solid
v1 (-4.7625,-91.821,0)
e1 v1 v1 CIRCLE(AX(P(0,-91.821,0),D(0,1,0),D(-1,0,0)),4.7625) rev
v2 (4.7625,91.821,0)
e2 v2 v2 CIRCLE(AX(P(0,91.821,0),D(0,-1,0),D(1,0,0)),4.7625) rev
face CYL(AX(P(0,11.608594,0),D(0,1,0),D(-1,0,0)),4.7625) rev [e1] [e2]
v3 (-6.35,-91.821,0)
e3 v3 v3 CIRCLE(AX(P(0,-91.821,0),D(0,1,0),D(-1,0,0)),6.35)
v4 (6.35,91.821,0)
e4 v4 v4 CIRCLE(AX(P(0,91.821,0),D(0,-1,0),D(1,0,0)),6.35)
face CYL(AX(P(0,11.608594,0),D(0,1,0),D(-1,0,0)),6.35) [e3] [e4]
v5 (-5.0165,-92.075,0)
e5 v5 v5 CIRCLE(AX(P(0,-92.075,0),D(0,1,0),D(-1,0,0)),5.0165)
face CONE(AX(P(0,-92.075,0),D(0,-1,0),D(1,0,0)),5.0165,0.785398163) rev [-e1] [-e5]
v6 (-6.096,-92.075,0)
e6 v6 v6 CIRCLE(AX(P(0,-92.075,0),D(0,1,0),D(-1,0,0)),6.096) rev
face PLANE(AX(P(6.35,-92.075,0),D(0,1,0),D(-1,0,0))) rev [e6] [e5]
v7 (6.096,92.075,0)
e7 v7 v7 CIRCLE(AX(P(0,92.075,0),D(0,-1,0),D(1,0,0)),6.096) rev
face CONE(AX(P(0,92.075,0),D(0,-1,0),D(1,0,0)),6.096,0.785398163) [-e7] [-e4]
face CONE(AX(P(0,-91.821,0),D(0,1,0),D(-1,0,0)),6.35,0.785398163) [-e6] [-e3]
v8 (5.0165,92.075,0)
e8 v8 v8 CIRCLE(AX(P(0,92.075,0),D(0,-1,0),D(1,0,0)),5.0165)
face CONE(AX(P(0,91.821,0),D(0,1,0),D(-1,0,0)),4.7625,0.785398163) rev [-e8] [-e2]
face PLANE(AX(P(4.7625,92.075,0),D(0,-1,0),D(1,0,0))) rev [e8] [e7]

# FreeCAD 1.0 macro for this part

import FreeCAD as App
import Part
import Sketcher

V = App.Vector
Q = App.Units.Quantity


def edges_at(feature, points):
    """Names of the edges that pass closest to the given points."""
    edges = feature.Shape.Edges
    near = lambda p: min(range(len(edges)), key=lambda i: edges[i].distToShape(Part.Vertex(*p))[0])
    return sorted({f"Edge{near(p) + 1}" for p in points})


def add_polygon(sketch, points):
    """Adds a closed chain of lines whose ends are joined by coincident constraints."""
    first, n = sketch.GeometryCount, len(points)
    for a, b in zip(points, points[1:] + points[:1]):
        sketch.addGeometry(Part.LineSegment(App.Vector(*a, 0), App.Vector(*b, 0)), False)
    for i in range(n):
        sketch.addConstraint(Sketcher.Constraint("Coincident", first + i, 2, first + (i + 1) % n, 1))

doc = App.newDocument("Part")
body = doc.addObject("PartDesign::Body", "Body")

# Sketch on XY plane
sketch1 = body.newObject("Sketcher::SketchObject", "Sketch")
sketch1.AttachmentSupport = (doc.getObject("XY_Plane"), [""])
sketch1.MapMode = "FlatFace"
add_polygon(sketch1, [(4.8, 92.1), (4.8, -92.1), (6.3, -92.1), (6.3, 92.1)])  # lines 0-3
sketch1.addConstraint([
    Sketcher.Constraint("Vertical", 0),
    Sketcher.Constraint("Horizontal", 1),
    Sketcher.Constraint("Vertical", 2),
    Sketcher.Constraint("Horizontal", 3),
    Sketcher.Constraint("DistanceY", 0, 2, 0, 1, Q("7.25 in")),
    Sketcher.Constraint("DistanceX", 1, 1, 1, 2, Q("0.0625 in")),
    Sketcher.Constraint("DistanceX", -1, 1, 1, 2, Q("0.25 in")),
    Sketcher.Constraint("DistanceY", 0, 2, -1, 1, Q("3.625 in")),
])
revolution = body.newObject("PartDesign::Revolution", "Revolution")
revolution.Profile = sketch1
revolution.ReferenceAxis = (sketch1, ["V_Axis"])
revolution.Angle = 360
doc.recompute()

chamfer = body.newObject("PartDesign::Chamfer", "Chamfer")
chamfer.Base = (revolution, edges_at(revolution, [
    (-4.763, -92.075, 0),
    (-6.35, -92.075, 0),
    (-6.35, 92.075, 0),
    (-4.763, 92.075, 0),
]))
chamfer.Size = Q("0.01 in")

doc.recompute()
